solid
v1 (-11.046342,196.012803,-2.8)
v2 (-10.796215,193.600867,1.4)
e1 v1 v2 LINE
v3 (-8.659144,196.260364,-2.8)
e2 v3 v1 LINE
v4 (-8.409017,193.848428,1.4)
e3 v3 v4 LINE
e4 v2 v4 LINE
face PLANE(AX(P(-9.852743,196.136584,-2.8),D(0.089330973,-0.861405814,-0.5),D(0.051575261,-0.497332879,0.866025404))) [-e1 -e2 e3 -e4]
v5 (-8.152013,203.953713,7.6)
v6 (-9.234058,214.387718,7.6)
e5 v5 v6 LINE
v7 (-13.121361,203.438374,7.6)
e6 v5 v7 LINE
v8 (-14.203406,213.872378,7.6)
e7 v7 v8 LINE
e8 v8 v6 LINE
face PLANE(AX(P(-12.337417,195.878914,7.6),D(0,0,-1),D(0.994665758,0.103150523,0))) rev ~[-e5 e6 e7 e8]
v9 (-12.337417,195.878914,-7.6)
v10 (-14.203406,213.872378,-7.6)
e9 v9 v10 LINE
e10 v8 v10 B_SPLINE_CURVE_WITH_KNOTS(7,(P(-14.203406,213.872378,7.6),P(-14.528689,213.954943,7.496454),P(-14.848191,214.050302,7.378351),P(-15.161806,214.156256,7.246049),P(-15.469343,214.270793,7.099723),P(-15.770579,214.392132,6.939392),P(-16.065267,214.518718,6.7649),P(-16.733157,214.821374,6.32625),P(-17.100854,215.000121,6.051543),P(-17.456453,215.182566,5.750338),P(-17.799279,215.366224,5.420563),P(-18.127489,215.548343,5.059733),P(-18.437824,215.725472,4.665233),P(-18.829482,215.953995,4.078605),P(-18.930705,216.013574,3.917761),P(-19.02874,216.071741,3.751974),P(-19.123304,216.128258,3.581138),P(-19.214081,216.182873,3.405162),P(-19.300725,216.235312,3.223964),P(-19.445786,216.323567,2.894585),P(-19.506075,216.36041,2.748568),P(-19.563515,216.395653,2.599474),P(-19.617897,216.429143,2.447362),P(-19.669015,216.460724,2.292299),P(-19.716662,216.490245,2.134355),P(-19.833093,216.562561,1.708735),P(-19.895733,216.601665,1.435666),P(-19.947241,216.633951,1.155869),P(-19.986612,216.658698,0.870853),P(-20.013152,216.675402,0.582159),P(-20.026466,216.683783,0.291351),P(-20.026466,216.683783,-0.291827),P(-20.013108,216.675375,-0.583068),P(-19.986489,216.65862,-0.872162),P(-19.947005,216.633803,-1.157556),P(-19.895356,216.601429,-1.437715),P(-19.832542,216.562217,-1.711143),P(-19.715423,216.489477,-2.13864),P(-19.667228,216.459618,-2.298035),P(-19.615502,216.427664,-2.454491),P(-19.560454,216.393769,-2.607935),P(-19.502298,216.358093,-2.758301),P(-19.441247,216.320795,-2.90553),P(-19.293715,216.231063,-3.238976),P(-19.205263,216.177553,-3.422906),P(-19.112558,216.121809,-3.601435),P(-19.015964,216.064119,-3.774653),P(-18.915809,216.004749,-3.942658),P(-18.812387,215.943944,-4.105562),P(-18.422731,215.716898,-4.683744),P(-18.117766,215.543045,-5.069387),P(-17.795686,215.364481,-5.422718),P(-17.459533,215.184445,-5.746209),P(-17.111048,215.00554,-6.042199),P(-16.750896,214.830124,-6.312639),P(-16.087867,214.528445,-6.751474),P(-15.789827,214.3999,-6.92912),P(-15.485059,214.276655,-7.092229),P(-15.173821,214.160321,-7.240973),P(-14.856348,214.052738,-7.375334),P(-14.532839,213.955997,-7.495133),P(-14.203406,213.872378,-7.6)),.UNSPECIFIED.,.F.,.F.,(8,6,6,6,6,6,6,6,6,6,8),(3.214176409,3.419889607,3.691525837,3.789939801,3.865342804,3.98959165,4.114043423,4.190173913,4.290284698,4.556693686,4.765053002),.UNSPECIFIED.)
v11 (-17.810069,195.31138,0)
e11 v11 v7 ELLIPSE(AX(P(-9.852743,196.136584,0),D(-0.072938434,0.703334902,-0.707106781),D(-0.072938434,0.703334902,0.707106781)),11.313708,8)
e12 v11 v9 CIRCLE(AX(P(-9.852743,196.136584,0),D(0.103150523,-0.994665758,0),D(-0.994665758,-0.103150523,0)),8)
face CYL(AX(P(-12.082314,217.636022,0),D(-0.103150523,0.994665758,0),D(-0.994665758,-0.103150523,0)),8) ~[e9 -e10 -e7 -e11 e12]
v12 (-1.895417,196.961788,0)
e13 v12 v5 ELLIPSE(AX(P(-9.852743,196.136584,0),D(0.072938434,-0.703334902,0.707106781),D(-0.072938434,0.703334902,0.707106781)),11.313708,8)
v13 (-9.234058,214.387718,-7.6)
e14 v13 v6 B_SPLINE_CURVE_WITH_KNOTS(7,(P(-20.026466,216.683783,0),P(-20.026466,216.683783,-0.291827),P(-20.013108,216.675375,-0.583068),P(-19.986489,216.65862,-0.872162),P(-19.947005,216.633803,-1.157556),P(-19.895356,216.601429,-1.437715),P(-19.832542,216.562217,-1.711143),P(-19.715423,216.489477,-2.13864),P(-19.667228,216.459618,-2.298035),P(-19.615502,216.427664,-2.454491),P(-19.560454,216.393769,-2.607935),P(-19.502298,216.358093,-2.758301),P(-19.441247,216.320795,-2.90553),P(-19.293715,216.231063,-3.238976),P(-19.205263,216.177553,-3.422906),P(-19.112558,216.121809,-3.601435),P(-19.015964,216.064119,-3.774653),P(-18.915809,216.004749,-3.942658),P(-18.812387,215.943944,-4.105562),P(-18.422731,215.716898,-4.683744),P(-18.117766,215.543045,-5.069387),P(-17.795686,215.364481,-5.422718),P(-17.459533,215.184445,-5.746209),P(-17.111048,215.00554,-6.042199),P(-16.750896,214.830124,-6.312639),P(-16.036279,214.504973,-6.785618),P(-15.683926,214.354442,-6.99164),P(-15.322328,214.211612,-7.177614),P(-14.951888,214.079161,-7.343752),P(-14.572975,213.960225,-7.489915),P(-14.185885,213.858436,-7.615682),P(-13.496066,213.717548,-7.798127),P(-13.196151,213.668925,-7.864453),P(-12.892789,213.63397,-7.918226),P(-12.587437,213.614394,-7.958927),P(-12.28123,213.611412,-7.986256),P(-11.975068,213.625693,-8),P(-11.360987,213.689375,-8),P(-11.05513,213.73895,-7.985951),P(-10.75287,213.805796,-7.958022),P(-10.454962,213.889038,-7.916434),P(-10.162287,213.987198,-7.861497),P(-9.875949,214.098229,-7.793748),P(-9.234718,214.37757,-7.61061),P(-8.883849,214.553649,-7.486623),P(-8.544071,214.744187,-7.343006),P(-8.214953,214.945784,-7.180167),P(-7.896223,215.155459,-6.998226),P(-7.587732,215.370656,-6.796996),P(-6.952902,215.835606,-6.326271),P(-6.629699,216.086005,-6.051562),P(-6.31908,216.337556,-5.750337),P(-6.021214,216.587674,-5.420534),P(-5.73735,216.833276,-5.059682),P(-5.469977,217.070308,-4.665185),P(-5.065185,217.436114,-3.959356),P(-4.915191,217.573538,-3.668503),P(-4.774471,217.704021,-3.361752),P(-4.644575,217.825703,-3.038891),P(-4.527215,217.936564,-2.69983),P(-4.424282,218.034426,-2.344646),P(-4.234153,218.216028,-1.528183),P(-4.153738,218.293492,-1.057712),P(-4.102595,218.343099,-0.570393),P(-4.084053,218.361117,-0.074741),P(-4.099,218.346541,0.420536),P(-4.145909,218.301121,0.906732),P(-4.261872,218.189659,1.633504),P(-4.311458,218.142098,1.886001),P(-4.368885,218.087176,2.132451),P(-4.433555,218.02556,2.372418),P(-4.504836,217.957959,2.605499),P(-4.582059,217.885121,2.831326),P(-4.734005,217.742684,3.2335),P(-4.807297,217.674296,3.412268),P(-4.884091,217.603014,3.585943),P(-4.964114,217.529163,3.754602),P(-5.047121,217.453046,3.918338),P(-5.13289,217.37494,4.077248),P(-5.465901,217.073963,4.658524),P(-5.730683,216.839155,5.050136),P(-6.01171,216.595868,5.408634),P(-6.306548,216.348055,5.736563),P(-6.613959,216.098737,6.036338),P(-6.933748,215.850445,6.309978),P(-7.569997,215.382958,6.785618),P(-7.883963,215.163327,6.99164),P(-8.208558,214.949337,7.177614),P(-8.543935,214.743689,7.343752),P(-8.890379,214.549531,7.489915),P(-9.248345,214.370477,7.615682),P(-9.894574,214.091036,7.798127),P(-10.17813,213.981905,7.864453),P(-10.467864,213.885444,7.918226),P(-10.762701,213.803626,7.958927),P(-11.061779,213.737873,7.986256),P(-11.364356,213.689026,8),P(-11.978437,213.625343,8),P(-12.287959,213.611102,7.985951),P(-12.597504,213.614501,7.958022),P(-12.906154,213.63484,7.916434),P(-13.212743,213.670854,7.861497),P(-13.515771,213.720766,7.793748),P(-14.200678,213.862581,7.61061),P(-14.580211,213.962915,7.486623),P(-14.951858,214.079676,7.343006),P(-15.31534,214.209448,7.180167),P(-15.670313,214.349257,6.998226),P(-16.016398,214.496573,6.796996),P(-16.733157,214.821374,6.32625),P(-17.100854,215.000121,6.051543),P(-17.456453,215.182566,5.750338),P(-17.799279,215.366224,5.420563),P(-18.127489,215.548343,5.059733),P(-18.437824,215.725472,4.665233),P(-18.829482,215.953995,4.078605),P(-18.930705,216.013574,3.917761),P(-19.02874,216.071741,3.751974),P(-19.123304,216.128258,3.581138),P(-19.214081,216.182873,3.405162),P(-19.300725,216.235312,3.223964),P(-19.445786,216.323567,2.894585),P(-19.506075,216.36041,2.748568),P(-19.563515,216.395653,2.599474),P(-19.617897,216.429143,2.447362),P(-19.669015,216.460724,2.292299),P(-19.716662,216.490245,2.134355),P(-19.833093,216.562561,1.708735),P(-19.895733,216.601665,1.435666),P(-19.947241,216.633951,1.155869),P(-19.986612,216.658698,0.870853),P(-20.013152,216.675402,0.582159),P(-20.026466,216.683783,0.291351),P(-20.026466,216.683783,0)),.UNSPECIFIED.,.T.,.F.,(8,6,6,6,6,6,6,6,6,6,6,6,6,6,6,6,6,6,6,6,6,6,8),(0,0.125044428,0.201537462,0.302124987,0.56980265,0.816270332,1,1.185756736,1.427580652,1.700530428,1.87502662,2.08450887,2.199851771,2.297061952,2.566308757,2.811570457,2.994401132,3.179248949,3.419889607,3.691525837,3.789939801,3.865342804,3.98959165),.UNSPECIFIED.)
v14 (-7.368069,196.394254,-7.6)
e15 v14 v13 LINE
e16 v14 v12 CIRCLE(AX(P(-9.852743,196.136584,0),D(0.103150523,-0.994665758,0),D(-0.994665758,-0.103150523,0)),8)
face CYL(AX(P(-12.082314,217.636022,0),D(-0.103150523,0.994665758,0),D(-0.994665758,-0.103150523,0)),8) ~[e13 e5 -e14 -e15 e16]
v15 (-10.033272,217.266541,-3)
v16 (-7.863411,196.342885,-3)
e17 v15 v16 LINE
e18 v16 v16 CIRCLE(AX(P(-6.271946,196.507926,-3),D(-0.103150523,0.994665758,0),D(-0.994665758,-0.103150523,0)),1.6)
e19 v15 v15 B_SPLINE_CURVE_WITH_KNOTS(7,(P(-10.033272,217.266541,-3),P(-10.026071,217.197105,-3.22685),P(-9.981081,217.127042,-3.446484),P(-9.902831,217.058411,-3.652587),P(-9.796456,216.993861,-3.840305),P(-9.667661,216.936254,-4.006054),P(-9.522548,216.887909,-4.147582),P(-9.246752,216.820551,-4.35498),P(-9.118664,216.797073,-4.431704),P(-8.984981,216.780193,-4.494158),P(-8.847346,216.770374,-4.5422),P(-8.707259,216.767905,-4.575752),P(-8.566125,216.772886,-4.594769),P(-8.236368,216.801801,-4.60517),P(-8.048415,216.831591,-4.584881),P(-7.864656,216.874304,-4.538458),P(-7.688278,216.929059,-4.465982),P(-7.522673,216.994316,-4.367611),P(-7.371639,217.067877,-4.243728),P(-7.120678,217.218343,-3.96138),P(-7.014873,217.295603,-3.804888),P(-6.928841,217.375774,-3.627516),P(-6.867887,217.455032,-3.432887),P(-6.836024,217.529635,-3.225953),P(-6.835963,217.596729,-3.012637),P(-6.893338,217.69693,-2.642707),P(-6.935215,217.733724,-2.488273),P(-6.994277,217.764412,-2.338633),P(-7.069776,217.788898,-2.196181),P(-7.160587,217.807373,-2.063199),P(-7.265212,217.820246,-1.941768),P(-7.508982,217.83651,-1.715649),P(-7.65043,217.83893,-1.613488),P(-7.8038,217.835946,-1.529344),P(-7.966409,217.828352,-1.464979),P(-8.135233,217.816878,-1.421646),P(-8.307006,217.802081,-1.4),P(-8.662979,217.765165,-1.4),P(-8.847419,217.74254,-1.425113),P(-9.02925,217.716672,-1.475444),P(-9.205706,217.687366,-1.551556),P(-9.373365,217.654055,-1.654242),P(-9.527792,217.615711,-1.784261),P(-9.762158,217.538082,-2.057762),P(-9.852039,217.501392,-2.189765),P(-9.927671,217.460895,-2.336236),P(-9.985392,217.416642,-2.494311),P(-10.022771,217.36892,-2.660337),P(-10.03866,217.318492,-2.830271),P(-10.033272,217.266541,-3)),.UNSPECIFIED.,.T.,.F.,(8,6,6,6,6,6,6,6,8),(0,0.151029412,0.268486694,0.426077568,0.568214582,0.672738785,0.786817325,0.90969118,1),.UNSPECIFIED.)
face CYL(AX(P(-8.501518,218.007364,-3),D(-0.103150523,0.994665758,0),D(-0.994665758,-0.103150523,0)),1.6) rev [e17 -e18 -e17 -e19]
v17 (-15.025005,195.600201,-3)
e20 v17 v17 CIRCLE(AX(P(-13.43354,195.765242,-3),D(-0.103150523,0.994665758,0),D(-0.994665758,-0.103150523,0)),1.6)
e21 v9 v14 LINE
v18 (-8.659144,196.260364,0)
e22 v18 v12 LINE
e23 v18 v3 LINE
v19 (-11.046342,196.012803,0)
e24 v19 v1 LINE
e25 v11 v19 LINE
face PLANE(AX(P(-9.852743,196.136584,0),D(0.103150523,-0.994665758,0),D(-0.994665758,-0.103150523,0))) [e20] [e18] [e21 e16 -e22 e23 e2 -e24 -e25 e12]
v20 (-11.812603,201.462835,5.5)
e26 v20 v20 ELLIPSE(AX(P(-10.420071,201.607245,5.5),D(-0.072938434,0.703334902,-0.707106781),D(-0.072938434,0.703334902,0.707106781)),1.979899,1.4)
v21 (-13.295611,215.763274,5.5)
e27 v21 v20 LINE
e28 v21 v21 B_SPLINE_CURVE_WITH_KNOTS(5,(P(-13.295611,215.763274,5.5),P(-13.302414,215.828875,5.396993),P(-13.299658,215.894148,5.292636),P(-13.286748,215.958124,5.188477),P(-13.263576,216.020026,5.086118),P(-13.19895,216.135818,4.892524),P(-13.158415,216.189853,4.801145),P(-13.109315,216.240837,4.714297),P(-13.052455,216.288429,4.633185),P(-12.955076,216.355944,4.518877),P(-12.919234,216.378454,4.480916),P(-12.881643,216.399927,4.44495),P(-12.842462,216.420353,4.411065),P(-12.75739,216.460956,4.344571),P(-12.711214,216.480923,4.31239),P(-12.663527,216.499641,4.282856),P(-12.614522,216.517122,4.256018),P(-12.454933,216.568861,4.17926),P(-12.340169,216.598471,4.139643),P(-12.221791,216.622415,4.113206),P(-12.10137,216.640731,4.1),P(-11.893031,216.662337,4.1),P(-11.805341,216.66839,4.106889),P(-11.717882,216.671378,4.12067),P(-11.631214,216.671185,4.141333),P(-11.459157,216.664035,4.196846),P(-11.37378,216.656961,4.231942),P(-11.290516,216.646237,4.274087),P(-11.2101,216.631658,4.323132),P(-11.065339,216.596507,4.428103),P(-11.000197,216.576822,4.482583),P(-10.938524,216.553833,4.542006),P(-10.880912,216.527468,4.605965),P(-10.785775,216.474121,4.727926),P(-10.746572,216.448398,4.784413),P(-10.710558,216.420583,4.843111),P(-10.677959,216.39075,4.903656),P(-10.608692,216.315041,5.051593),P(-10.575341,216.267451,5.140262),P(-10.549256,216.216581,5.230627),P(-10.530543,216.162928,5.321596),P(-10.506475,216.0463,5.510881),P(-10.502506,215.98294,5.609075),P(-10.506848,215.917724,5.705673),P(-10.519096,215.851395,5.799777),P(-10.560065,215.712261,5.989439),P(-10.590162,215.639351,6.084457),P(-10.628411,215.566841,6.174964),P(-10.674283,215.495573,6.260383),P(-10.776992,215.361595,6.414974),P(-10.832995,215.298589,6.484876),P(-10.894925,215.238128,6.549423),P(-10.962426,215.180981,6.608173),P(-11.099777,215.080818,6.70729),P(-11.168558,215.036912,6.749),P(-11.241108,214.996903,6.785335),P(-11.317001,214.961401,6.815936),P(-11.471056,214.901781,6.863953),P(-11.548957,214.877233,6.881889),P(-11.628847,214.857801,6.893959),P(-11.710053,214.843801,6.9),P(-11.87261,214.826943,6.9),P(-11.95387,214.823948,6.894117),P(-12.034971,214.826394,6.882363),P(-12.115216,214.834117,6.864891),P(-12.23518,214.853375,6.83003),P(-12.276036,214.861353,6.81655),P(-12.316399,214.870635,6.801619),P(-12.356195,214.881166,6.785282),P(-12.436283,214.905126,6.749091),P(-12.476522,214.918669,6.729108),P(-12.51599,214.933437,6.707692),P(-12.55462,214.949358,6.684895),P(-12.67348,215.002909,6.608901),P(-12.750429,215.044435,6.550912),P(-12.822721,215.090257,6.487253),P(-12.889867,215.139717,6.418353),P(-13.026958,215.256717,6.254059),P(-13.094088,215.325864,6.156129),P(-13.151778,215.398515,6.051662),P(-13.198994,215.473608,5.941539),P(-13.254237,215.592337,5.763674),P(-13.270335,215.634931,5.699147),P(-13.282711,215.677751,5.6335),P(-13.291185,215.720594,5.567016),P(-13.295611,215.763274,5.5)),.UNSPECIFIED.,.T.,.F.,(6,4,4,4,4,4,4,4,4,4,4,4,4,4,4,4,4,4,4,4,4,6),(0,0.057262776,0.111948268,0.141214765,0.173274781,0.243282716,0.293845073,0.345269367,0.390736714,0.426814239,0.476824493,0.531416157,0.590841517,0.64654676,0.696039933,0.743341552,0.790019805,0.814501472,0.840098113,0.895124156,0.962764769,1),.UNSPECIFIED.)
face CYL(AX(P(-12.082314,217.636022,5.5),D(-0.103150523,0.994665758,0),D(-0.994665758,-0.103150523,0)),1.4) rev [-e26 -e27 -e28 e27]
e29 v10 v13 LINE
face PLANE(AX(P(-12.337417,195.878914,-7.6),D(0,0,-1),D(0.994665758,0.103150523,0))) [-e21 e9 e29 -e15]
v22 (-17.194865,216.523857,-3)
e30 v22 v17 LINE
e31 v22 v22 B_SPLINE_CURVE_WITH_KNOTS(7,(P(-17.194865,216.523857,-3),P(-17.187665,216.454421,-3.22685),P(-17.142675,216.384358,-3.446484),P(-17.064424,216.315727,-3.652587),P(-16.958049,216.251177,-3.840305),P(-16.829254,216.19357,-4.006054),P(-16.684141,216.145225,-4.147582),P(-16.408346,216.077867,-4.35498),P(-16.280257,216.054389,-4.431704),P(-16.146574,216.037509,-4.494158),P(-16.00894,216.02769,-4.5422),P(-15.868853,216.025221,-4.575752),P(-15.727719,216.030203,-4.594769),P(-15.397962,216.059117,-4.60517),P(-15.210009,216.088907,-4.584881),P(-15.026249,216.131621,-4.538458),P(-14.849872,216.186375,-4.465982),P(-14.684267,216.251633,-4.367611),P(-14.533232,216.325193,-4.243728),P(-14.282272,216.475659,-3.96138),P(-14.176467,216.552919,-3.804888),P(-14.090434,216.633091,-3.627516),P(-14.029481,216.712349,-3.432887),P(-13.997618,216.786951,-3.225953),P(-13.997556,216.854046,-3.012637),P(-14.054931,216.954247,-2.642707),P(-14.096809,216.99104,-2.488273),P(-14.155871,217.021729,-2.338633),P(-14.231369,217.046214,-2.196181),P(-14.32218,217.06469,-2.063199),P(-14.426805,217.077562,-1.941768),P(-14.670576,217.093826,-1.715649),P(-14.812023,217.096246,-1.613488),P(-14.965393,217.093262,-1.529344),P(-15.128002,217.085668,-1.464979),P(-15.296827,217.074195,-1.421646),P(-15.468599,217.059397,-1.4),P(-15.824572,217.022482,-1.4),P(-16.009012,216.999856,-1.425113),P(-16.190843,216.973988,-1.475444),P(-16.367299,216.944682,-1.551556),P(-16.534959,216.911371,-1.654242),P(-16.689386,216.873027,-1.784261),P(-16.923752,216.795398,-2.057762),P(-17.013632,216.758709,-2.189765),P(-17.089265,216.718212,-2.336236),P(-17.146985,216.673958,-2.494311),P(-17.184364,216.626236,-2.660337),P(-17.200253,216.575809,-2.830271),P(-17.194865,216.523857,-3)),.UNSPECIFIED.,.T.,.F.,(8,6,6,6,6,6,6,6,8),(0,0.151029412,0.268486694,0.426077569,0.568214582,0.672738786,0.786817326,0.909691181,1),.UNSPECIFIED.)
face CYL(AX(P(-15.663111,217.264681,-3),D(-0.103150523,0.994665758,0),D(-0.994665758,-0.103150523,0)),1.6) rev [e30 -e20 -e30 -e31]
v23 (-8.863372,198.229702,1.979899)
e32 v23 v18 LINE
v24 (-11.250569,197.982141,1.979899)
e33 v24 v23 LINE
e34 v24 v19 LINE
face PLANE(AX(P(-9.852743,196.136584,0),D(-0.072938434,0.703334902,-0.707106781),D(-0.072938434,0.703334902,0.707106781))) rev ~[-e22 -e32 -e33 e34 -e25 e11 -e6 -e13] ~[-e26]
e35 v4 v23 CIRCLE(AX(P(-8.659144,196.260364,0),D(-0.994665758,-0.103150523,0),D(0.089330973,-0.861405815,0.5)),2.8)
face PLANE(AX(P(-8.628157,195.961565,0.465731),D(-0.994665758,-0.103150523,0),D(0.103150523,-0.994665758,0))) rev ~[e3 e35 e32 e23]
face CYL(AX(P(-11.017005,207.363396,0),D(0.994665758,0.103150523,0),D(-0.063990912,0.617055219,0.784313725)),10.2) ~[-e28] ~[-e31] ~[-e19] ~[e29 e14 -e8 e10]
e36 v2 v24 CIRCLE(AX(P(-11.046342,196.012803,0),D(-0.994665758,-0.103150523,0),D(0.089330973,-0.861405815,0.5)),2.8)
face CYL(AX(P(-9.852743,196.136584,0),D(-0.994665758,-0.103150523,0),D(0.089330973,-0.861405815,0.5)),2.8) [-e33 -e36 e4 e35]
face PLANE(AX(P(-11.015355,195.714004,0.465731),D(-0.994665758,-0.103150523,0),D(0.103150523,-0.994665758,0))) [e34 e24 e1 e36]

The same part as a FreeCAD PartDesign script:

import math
import FreeCAD as App
import Part
import Sketcher
from FreeCAD import Vector
Q = App.Units.Quantity


def add_polygon(sketch, points):
    """Adds a closed chain of lines whose ends are joined by coincident constraints."""
    first, n = sketch.GeometryCount, len(points)
    for a, b in zip(points, points[1:] + points[:1]):
        sketch.addGeometry(Part.LineSegment(App.Vector(*a, 0), App.Vector(*b, 0)), False)
    for i in range(n):
        sketch.addConstraint(Sketcher.Constraint("Coincident", first + i, 2, first + (i + 1) % n, 1))

doc = App.newDocument("Part")
body = doc.addObject("PartDesign::Body", "Body")

sketch1 = body.newObject("Sketcher::SketchObject", "Sketch")
sketch1.Placement = App.Placement(Vector(-12.082314, 217.636022, 0), App.Rotation(Vector(-0.994665758, -0.103150523, 0), Vector(0, 0, -1.000000001), Vector(0.103150523, -0.994665758, 0), "ZXY"))
sketch1.addGeometry(Part.Circle(Vector(0, 0, 0), Vector(0, 0, 1), 8), False)
sketch1.addConstraint([
    Sketcher.Constraint("Coincident", 0, 3, -1, 1),
    Sketcher.Constraint("Diameter", 0, 16.0),
])
pad1 = body.newObject("PartDesign::Pad", "Pad")
pad1.Profile = sketch1
pad1.Length = 21.614737

sketch2 = body.newObject("Sketcher::SketchObject", "Sketch001")
sketch2.Placement = App.Placement(Vector(10.375762, 1.076005, 0), App.Rotation(Vector(0.103150523, -0.994665758, 0), Vector(0, 0, 1.000000001), Vector(-0.994665758, -0.103150523, 0), "ZXY"))
sketch2.addGeometry([
    Part.LineSegment(Vector(-213.7, 8, 0), Vector(-217.7, 8, 0)),
    Part.LineSegment(Vector(-217.7, 8, 0), Vector(-217.7, -8, 0)),
    Part.LineSegment(Vector(-217.7, -8, 0), Vector(-213.7, -8, 0)),
    Part.ArcOfCircle(Part.Circle(Vector(-207.4, 0, 0), Vector(0, 0, 1), 10.2), math.radians(128), math.radians(232)),
], False)
sketch2.addConstraint([
    Sketcher.Constraint("Coincident", 0, 2, 1, 1),
    Sketcher.Constraint("Coincident", 1, 2, 2, 1),
    Sketcher.Constraint("Coincident", 2, 2, 3, 2),
    Sketcher.Constraint("Coincident", 3, 1, 0, 1),
    Sketcher.Constraint("Horizontal", 0),
    Sketcher.Constraint("Vertical", 1),
    Sketcher.Constraint("Horizontal", 2),
    Sketcher.Constraint("Symmetric", 2, 2, 3, 1, -1),
    Sketcher.Constraint("Radius", 3, 10.2),
    Sketcher.Constraint("DistanceX", 0, 2, 0, 1, 4.0),
    Sketcher.Constraint("DistanceY", 1, 2, 1, 1, 16.0),
    Sketcher.Constraint("DistanceX", 3, 3, -1, 1, 207.393679),
])
pocket1 = body.newObject("PartDesign::Pocket", "Pocket")
pocket1.Profile = sketch2
pocket1.Type = "ThroughAll"
pocket1.Midplane = True

sketch3 = body.newObject("Sketcher::SketchObject", "Sketch002")
sketch3.Placement = App.Placement(Vector(10.375762, 1.076005, 0), App.Rotation(Vector(0.103150523, -0.994665758, 0), Vector(0, 0, 1.000000001), Vector(-0.994665758, -0.103150523, 0), "ZXY"))
add_polygon(sketch3, [(-204, 8), (-196, 0), (-196, 8)])
sketch3.addConstraint([
    Sketcher.Constraint("Vertical", 1),
    Sketcher.Constraint("Horizontal", 2),
    Sketcher.Constraint("PointOnObject", 0, 2, -1),
    Sketcher.Constraint("Equal", 2, 1),
    Sketcher.Constraint("DistanceX", 2, 2, 2, 1, 8.0),
    Sketcher.Constraint("DistanceX", 0, 2, -1, 1, 196.106659),
])
pocket2 = body.newObject("PartDesign::Pocket", "Pocket001")
pocket2.Profile = sketch3
pocket2.Type = "ThroughAll"
pocket2.Midplane = True

sketch4 = body.newObject("Sketcher::SketchObject", "Sketch003")
sketch4.Placement = App.Placement(Vector(10.375762, 1.076005, 0), App.Rotation(Vector(0.103150523, -0.994665758, 0), Vector(0, 0, 1.000000001), Vector(-0.994665758, -0.103150523, 0), "ZXY"))
sketch4.addGeometry([
    Part.LineSegment(Vector(-198.1, 2, 0), Vector(-196.1, 0, 0)),
    Part.LineSegment(Vector(-196.1, 0, 0), Vector(-196.1, -2.8, 0)),
    Part.LineSegment(Vector(-196.1, -2.8, 0), Vector(-193.7, 1.4, 0)),
    Part.ArcOfCircle(Part.Circle(Vector(-196.1, 0, 0), Vector(0, 0, 1), 2.8), math.radians(30), math.radians(135)),
], False)
sketch4.addConstraint([
    Sketcher.Constraint("Coincident", 0, 2, 1, 1),
    Sketcher.Constraint("Coincident", 1, 2, 2, 1),
    Sketcher.Constraint("Coincident", 2, 2, 3, 1),
    Sketcher.Constraint("Coincident", 3, 2, 0, 1),
    Sketcher.Constraint("Vertical", 1),
    Sketcher.Constraint("Coincident", 0, 2, 3, 3),
    Sketcher.Constraint("PointOnObject", 3, 3, -1),
    Sketcher.Constraint("Radius", 3, 2.8),
    Sketcher.Constraint("Angle", 0, Q("-45 deg")),
    Sketcher.Constraint("Angle", 2, Q("60 deg")),
    Sketcher.Constraint("DistanceY", 1, 2, 1, 1, 2.8),
    Sketcher.Constraint("DistanceX", 3, 3, -1, 1, 196.106659),
])
pad2 = body.newObject("PartDesign::Pad", "Pad001")
pad2.Profile = sketch4
pad2.Length = 2.4
pad2.Midplane = True

sketch5 = body.newObject("Sketcher::SketchObject", "Sketch004")
sketch5.Placement = App.Placement(Vector(-12.082314, 217.636022, 0), App.Rotation(Vector(-0.994665758, -0.103150523, 0), Vector(0, 0, -1.000000001), Vector(0.103150523, -0.994665758, 0), "ZXY"))
sketch5.addGeometry([
    Part.Circle(Vector(-3.6, 3, 0), Vector(0, 0, 1), 1.6),
    Part.Circle(Vector(3.6, 3, 0), Vector(0, 0, 1), 1.6),
    Part.Circle(Vector(0, -5.5, 0), Vector(0, 0, 1), 1.4),
], False)
sketch5.addConstraint([
    Sketcher.Constraint("Equal", 0, 1),
    Sketcher.Constraint("Symmetric", 0, 3, 1, 3, -2),
    Sketcher.Constraint("PointOnObject", 2, 3, -2),
    Sketcher.Constraint("Diameter", 0, 3.2),
    Sketcher.Constraint("Diameter", 2, 2.8),
    Sketcher.Constraint("DistanceY", -1, 1, 0, 3, 3.0),
    Sketcher.Constraint("DistanceX", 0, 3, -1, 1, 3.6),
    Sketcher.Constraint("DistanceY", 2, 3, -1, 1, 5.5),
])
pocket3 = body.newObject("PartDesign::Pocket", "Pocket002")
pocket3.Profile = sketch5
pocket3.Type = "ThroughAll"
pocket3.Midplane = True

sketch6 = body.newObject("Sketcher::SketchObject", "Sketch005")
sketch6.Placement = App.Placement(Vector(-20.228504, 195.060579, 0), App.Rotation(Vector(0.994665758, 0.103150523, 0), Vector(0, 0, 1.000000001), Vector(0.103150523, -0.994665758, 0), "ZXY"))
sketch6.addGeometry([
    Part.LineSegment(Vector(12.9, -7.6, 0), Vector(7.9, -7.6, 0)),
    Part.ArcOfCircle(Part.Circle(Vector(10.4, 0, 0), Vector(0, 0, 1), 8), math.radians(-108), math.radians(-72)),
    Part.LineSegment(Vector(7.9, 7.6, 0), Vector(12.9, 7.6, 0)),
    Part.ArcOfCircle(Part.Circle(Vector(10.4, 0, 0), Vector(0, 0, 1), 8), math.radians(72), math.radians(108)),
], False)
sketch6.addConstraint([
    Sketcher.Constraint("Coincident", 0, 1, 1, 2),
    Sketcher.Constraint("Coincident", 1, 1, 0, 2),
    Sketcher.Constraint("Coincident", 2, 1, 3, 2),
    Sketcher.Constraint("Coincident", 3, 1, 2, 2),
    Sketcher.Constraint("Horizontal", 0),
    Sketcher.Constraint("Horizontal", 2),
    Sketcher.Constraint("Coincident", 3, 3, 1, 3),
    Sketcher.Constraint("Equal", 1, 3),
    Sketcher.Constraint("Symmetric", 1, 1, 2, 1, -1),
    Sketcher.Constraint("Radius", 1, 8.0),
    Sketcher.Constraint("DistanceY", 0, 1, -1, 1, 7.6),
    Sketcher.Constraint("DistanceX", -1, 1, 1, 3, 10.431405),
])
pocket4 = body.newObject("PartDesign::Pocket", "Pocket003")
pocket4.Profile = sketch6
pocket4.Type = "ThroughAll"

doc.recompute()
